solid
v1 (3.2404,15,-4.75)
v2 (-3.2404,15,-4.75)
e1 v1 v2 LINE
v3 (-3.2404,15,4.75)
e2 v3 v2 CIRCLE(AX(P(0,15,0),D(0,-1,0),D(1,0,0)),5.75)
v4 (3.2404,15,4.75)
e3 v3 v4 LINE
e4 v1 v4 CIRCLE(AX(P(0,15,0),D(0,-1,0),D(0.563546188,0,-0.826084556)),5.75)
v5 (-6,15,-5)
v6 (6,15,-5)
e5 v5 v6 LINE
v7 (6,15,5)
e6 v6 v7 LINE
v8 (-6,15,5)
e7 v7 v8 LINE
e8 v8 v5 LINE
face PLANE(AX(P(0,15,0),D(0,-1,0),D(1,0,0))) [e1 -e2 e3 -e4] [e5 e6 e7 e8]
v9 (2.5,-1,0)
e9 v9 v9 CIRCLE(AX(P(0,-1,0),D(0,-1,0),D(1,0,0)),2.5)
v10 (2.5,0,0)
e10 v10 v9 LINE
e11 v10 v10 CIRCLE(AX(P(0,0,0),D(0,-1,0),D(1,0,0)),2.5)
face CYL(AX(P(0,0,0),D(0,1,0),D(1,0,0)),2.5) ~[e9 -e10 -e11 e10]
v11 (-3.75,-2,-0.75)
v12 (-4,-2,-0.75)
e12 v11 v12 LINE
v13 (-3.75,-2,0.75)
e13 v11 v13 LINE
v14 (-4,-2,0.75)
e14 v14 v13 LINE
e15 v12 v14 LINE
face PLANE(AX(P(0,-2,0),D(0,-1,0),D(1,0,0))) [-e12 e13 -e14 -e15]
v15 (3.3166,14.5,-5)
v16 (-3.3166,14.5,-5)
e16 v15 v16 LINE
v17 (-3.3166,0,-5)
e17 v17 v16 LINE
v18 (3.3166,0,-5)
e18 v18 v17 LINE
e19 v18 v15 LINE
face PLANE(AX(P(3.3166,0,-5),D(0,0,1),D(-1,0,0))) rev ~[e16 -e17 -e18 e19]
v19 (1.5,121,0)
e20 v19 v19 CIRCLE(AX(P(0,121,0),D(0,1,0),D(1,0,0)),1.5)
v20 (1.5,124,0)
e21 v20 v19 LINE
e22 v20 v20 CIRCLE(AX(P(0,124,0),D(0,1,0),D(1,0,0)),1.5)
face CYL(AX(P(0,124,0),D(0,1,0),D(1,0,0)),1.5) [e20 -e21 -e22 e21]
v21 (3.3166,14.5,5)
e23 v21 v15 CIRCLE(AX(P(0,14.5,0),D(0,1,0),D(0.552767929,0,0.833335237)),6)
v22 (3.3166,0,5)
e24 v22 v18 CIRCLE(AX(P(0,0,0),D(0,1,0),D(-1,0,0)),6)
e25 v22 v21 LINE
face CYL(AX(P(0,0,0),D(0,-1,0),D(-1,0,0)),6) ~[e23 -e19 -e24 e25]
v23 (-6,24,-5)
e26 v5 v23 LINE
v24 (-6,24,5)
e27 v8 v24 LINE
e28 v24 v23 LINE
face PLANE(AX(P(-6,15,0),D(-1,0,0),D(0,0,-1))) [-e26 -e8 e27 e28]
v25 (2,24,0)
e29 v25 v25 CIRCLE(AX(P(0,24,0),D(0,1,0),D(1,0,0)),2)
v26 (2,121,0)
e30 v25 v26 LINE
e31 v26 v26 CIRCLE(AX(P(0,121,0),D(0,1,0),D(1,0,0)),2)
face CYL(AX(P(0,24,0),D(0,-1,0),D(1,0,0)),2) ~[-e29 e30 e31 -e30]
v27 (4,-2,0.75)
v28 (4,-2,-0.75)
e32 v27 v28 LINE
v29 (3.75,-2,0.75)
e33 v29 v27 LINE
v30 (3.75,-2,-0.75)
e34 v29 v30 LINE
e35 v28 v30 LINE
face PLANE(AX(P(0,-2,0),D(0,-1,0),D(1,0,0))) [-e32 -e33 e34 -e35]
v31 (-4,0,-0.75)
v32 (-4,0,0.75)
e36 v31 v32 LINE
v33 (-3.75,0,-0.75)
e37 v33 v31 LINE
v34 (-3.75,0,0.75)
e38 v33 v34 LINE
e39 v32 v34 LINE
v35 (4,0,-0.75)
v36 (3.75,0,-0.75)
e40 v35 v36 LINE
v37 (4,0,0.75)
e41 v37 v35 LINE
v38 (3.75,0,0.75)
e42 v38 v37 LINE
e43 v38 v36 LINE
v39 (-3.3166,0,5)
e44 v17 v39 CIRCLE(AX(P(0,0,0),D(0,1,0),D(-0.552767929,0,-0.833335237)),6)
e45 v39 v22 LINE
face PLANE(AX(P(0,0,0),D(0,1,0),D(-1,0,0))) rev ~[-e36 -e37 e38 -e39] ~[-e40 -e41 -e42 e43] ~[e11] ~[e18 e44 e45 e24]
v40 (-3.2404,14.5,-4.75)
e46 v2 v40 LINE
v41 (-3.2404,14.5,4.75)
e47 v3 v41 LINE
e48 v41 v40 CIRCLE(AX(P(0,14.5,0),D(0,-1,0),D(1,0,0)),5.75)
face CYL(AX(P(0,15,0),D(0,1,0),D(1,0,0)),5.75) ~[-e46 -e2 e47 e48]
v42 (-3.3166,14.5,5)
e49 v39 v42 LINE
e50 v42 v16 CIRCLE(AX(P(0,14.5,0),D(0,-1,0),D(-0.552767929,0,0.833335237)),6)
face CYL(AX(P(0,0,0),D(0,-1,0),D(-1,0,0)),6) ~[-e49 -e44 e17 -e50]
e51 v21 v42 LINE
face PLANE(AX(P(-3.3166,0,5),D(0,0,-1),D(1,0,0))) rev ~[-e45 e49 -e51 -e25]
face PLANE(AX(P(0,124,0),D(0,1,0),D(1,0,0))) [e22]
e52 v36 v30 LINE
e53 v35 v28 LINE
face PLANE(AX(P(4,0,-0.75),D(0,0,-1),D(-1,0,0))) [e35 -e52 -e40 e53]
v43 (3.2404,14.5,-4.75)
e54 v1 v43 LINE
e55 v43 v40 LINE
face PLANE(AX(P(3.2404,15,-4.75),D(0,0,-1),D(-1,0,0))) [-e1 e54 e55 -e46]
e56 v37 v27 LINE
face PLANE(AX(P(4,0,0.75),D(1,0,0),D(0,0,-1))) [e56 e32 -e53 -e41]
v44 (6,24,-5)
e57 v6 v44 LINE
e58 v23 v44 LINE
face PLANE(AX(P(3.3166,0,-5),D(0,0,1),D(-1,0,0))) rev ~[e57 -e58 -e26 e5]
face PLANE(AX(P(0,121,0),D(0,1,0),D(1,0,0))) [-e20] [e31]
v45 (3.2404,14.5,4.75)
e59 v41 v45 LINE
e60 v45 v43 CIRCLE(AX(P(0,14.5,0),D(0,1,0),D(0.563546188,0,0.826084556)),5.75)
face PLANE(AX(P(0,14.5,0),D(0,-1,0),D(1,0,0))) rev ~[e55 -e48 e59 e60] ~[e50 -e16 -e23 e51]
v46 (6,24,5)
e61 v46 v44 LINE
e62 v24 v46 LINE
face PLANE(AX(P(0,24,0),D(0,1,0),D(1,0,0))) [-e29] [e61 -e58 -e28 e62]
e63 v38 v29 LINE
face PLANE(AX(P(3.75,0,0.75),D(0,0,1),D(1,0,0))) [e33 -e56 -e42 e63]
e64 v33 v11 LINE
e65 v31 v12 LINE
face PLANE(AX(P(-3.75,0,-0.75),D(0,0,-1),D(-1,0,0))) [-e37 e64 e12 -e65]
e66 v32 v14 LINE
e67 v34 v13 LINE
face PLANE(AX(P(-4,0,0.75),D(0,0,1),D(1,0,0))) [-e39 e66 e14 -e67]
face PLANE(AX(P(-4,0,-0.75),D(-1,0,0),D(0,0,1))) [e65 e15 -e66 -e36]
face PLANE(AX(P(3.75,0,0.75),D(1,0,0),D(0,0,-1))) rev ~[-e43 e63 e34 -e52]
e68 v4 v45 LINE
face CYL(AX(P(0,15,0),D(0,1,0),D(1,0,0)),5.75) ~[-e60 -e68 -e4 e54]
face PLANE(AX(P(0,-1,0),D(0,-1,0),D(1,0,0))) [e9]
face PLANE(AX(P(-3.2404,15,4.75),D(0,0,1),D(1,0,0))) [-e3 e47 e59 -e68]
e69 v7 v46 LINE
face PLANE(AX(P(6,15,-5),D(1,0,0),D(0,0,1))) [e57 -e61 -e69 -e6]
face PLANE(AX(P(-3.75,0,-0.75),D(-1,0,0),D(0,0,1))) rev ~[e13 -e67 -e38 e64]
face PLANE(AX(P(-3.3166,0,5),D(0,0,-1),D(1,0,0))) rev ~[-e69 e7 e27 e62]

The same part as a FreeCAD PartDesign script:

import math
import FreeCAD as App
import Part
import Sketcher
Q = App.Units.Quantity


def add_polygon(sketch, points):
    """Adds a closed chain of lines whose ends are joined by coincident constraints."""
    first, n = sketch.GeometryCount, len(points)
    for a, b in zip(points, points[1:] + points[:1]):
        sketch.addGeometry(Part.LineSegment(App.Vector(*a, 0), App.Vector(*b, 0)), False)
    for i in range(n):
        sketch.addConstraint(Sketcher.Constraint("Coincident", first + i, 2, first + (i + 1) % n, 1))

doc = App.newDocument("Part")
body = doc.addObject("PartDesign::Body", "Body")

sketch1 = body.newObject("Sketcher::SketchObject", "Sketch")
sketch1.AttachmentSupport = (doc.getObject("XZ_Plane"), [""])
sketch1.MapMode = "FlatFace"
sketch1.addGeometry([
    Part.ArcOfCircle(Part.Circle(App.Vector(0, 0, 0), App.Vector(0, 0, 1), 6), math.radians(124), math.radians(236)),
    Part.LineSegment(App.Vector(-3, 5, 0), App.Vector(3, 5, 0)),
    Part.ArcOfCircle(Part.Circle(App.Vector(0, 0, 0), App.Vector(0, 0, 1), 6), math.radians(-56), math.radians(56)),
    Part.LineSegment(App.Vector(3, -5, 0), App.Vector(-3, -5, 0)),
], False)
sketch1.addConstraint([
    Sketcher.Constraint("Coincident", 0, 1, 1, 1),
    Sketcher.Constraint("Coincident", 1, 2, 2, 2),
    Sketcher.Constraint("Coincident", 2, 1, 3, 1),
    Sketcher.Constraint("Coincident", 3, 2, 0, 2),
    Sketcher.Constraint("Horizontal", 1),
    Sketcher.Constraint("Horizontal", 3),
    Sketcher.Constraint("Coincident", 0, 3, -1, 1),
    Sketcher.Constraint("Coincident", 2, 3, -1, 1),
    Sketcher.Constraint("Equal", 0, 2),
    Sketcher.Constraint("Vertical", 1, 2, 2, 1),
    Sketcher.Constraint("Radius", 0, Q("6 mm")),
    Sketcher.Constraint("DistanceY", 2, 1, 1, 2, Q("10 mm")),
])
pad1 = body.newObject("PartDesign::Pad", "Pad")
pad1.Profile = sketch1
pad1.Length = 15
pad1.Reversed = True

sketch2 = body.newObject("Sketcher::SketchObject", "Sketch001")
sketch2.AttachmentSupport = (doc.getObject("XZ_Plane"), [""])
sketch2.MapMode = "FlatFace"
sketch2.addGeometry(Part.Circle(App.Vector(0, 0, 0), App.Vector(0, 0, 1), 2.5), False)
sketch2.addConstraint([
    Sketcher.Constraint("Coincident", 0, 3, -1, 1),
    Sketcher.Constraint("Diameter", 0, Q("5 mm")),
])
pad2 = body.newObject("PartDesign::Pad", "Pad001")
pad2.Profile = sketch2
pad2.Length = 1

sketch3 = body.newObject("Sketcher::SketchObject", "Sketch002")
sketch3.AttachmentSupport = (doc.getObject("XZ_Plane"), [""])
sketch3.MapMode = "FlatFace"
add_polygon(sketch3, [(3.75, -0.75), (4, -0.75), (4, 0.75), (3.75, 0.75)])
add_polygon(sketch3, [(-4, -0.75), (-3.75, -0.75), (-3.75, 0.75), (-4, 0.75)])
sketch3.addConstraint([
    Sketcher.Constraint("Horizontal", 0),
    Sketcher.Constraint("Vertical", 1),
    Sketcher.Constraint("Horizontal", 2),
    Sketcher.Constraint("Vertical", 3),
    Sketcher.Constraint("Horizontal", 4),
    Sketcher.Constraint("Vertical", 5),
    Sketcher.Constraint("Horizontal", 6),
    Sketcher.Constraint("Vertical", 7),
    Sketcher.Constraint("Symmetric", 2, 2, 4, 2, -1, 1),
    Sketcher.Constraint("Symmetric", 0, 2, 6, 2, -1, 1),
    Sketcher.Constraint("Horizontal", 3, 2, 4, 2),
    Sketcher.Constraint("DistanceY", 1, 1, 1, 2, Q("1.5 mm")),
    Sketcher.Constraint("DistanceX", 6, 2, 1, 2, Q("8 mm")),
    Sketcher.Constraint("DistanceX", 4, 2, 3, 2, Q("7.5 mm")),
])
pad3 = body.newObject("PartDesign::Pad", "Pad002")
pad3.Profile = sketch3
pad3.Length = 2

sketch4 = body.newObject("Sketcher::SketchObject", "Sketch003")
sketch4.AttachmentSupport = (doc.getObject("XZ_Plane"), [""])
sketch4.MapMode = "FlatFace"
sketch4.AttachmentOffset = App.Placement(App.Vector(0, 0, -15), App.Rotation())
add_polygon(sketch4, [(-6, -5), (-6, 5), (6, 5), (6, -5)])
sketch4.addConstraint([
    Sketcher.Constraint("Vertical", 0),
    Sketcher.Constraint("Horizontal", 1),
    Sketcher.Constraint("Vertical", 2),
    Sketcher.Constraint("Horizontal", 3),
    Sketcher.Constraint("Symmetric", 0, 2, 2, 2, -1, 1),
    Sketcher.Constraint("DistanceX", 1, 1, 1, 2, Q("12 mm")),
    Sketcher.Constraint("DistanceY", 0, 1, 0, 2, Q("10 mm")),
])
pad4 = body.newObject("PartDesign::Pad", "Pad003")
pad4.Profile = sketch4
pad4.Length = 9
pad4.Reversed = True

sketch5 = body.newObject("Sketcher::SketchObject", "Sketch004")
sketch5.AttachmentSupport = (doc.getObject("XZ_Plane"), [""])
sketch5.MapMode = "FlatFace"
sketch5.AttachmentOffset = App.Placement(App.Vector(0, 0, -24), App.Rotation())
sketch5.addGeometry(Part.Circle(App.Vector(0, 0, 0), App.Vector(0, 0, 1), 2), False)
sketch5.addConstraint([
    Sketcher.Constraint("Coincident", 0, 3, -1, 1),
    Sketcher.Constraint("Diameter", 0, Q("4 mm")),
])
pad5 = body.newObject("PartDesign::Pad", "Pad004")
pad5.Profile = sketch5
pad5.Length = 100
pad5.Reversed = True

sketch6 = body.newObject("Sketcher::SketchObject", "Sketch005")
sketch6.AttachmentSupport = (doc.getObject("XZ_Plane"), [""])
sketch6.MapMode = "FlatFace"
sketch6.AttachmentOffset = App.Placement(App.Vector(0, 0, -15), App.Rotation())
add_polygon(sketch6, [(6, -5), (6, 5), (-6, 5), (-6, -5)])
sketch6.addGeometry(Part.LineSegment(App.Vector(3, -5, 0), App.Vector(-3, -5, 0)), False)
sketch6.addGeometry(Part.ArcOfCircle(Part.Circle(App.Vector(0, 0, 0), App.Vector(0, 0, 1), 6), math.radians(124), math.radians(236)), False)
sketch6.addGeometry(Part.LineSegment(App.Vector(-3, 5, 0), App.Vector(3, 5, 0)), False)
sketch6.addGeometry(Part.ArcOfCircle(Part.Circle(App.Vector(0, 0, 0), App.Vector(0, 0, 1), 6), math.radians(-56), math.radians(56)), False)
sketch6.addConstraint([
    Sketcher.Constraint("Coincident", 4, 2, 5, 2),
    Sketcher.Constraint("Coincident", 5, 1, 6, 1),
    Sketcher.Constraint("Coincident", 6, 2, 7, 2),
    Sketcher.Constraint("Coincident", 7, 1, 4, 1),
    Sketcher.Constraint("Vertical", 0),
    Sketcher.Constraint("Horizontal", 1),
    Sketcher.Constraint("Vertical", 2),
    Sketcher.Constraint("Horizontal", 3),
    Sketcher.Constraint("Horizontal", 4),
    Sketcher.Constraint("Horizontal", 6),
    Sketcher.Constraint("Coincident", 5, 3, -1, 1),
    Sketcher.Constraint("Coincident", 7, 3, -1, 1),
    Sketcher.Constraint("Equal", 5, 7),
    Sketcher.Constraint("Symmetric", 0, 2, 2, 2, -1, 1),
    Sketcher.Constraint("Vertical", 4, 2, 5, 1),
    Sketcher.Constraint("Radius", 5, Q("5.75 mm")),
    Sketcher.Constraint("DistanceY", 4, 2, 5, 1, Q("9.5 mm")),
    Sketcher.Constraint("DistanceX", 1, 2, 1, 1, Q("12 mm")),
    Sketcher.Constraint("DistanceY", 0, 1, 0, 2, Q("10 mm")),
])
pocket1 = body.newObject("PartDesign::Pocket", "Pocket")
pocket1.Profile = sketch6
pocket1.Length = 0.5
pocket1.Reversed = True

sketch7 = body.newObject("Sketcher::SketchObject", "Sketch006")
sketch7.AttachmentSupport = (doc.getObject("XZ_Plane"), [""])
sketch7.MapMode = "FlatFace"
sketch7.AttachmentOffset = App.Placement(App.Vector(0, 0, -124), App.Rotation())
sketch7.addGeometry([
    Part.Circle(App.Vector(0, 0, 0), App.Vector(0, 0, 1), 2),
    Part.Circle(App.Vector(0, 0, 0), App.Vector(0, 0, 1), 1.5),
], False)
sketch7.addConstraint([
    Sketcher.Constraint("Coincident", 0, 3, -1, 1),
    Sketcher.Constraint("Coincident", 1, 3, -1, 1),
    Sketcher.Constraint("Diameter", 1, Q("3 mm")),
    Sketcher.Constraint("Diameter", 0, Q("4 mm")),
])
pocket2 = body.newObject("PartDesign::Pocket", "Pocket001")
pocket2.Profile = sketch7
pocket2.Length = 3
pocket2.Reversed = True

doc.recompute()
